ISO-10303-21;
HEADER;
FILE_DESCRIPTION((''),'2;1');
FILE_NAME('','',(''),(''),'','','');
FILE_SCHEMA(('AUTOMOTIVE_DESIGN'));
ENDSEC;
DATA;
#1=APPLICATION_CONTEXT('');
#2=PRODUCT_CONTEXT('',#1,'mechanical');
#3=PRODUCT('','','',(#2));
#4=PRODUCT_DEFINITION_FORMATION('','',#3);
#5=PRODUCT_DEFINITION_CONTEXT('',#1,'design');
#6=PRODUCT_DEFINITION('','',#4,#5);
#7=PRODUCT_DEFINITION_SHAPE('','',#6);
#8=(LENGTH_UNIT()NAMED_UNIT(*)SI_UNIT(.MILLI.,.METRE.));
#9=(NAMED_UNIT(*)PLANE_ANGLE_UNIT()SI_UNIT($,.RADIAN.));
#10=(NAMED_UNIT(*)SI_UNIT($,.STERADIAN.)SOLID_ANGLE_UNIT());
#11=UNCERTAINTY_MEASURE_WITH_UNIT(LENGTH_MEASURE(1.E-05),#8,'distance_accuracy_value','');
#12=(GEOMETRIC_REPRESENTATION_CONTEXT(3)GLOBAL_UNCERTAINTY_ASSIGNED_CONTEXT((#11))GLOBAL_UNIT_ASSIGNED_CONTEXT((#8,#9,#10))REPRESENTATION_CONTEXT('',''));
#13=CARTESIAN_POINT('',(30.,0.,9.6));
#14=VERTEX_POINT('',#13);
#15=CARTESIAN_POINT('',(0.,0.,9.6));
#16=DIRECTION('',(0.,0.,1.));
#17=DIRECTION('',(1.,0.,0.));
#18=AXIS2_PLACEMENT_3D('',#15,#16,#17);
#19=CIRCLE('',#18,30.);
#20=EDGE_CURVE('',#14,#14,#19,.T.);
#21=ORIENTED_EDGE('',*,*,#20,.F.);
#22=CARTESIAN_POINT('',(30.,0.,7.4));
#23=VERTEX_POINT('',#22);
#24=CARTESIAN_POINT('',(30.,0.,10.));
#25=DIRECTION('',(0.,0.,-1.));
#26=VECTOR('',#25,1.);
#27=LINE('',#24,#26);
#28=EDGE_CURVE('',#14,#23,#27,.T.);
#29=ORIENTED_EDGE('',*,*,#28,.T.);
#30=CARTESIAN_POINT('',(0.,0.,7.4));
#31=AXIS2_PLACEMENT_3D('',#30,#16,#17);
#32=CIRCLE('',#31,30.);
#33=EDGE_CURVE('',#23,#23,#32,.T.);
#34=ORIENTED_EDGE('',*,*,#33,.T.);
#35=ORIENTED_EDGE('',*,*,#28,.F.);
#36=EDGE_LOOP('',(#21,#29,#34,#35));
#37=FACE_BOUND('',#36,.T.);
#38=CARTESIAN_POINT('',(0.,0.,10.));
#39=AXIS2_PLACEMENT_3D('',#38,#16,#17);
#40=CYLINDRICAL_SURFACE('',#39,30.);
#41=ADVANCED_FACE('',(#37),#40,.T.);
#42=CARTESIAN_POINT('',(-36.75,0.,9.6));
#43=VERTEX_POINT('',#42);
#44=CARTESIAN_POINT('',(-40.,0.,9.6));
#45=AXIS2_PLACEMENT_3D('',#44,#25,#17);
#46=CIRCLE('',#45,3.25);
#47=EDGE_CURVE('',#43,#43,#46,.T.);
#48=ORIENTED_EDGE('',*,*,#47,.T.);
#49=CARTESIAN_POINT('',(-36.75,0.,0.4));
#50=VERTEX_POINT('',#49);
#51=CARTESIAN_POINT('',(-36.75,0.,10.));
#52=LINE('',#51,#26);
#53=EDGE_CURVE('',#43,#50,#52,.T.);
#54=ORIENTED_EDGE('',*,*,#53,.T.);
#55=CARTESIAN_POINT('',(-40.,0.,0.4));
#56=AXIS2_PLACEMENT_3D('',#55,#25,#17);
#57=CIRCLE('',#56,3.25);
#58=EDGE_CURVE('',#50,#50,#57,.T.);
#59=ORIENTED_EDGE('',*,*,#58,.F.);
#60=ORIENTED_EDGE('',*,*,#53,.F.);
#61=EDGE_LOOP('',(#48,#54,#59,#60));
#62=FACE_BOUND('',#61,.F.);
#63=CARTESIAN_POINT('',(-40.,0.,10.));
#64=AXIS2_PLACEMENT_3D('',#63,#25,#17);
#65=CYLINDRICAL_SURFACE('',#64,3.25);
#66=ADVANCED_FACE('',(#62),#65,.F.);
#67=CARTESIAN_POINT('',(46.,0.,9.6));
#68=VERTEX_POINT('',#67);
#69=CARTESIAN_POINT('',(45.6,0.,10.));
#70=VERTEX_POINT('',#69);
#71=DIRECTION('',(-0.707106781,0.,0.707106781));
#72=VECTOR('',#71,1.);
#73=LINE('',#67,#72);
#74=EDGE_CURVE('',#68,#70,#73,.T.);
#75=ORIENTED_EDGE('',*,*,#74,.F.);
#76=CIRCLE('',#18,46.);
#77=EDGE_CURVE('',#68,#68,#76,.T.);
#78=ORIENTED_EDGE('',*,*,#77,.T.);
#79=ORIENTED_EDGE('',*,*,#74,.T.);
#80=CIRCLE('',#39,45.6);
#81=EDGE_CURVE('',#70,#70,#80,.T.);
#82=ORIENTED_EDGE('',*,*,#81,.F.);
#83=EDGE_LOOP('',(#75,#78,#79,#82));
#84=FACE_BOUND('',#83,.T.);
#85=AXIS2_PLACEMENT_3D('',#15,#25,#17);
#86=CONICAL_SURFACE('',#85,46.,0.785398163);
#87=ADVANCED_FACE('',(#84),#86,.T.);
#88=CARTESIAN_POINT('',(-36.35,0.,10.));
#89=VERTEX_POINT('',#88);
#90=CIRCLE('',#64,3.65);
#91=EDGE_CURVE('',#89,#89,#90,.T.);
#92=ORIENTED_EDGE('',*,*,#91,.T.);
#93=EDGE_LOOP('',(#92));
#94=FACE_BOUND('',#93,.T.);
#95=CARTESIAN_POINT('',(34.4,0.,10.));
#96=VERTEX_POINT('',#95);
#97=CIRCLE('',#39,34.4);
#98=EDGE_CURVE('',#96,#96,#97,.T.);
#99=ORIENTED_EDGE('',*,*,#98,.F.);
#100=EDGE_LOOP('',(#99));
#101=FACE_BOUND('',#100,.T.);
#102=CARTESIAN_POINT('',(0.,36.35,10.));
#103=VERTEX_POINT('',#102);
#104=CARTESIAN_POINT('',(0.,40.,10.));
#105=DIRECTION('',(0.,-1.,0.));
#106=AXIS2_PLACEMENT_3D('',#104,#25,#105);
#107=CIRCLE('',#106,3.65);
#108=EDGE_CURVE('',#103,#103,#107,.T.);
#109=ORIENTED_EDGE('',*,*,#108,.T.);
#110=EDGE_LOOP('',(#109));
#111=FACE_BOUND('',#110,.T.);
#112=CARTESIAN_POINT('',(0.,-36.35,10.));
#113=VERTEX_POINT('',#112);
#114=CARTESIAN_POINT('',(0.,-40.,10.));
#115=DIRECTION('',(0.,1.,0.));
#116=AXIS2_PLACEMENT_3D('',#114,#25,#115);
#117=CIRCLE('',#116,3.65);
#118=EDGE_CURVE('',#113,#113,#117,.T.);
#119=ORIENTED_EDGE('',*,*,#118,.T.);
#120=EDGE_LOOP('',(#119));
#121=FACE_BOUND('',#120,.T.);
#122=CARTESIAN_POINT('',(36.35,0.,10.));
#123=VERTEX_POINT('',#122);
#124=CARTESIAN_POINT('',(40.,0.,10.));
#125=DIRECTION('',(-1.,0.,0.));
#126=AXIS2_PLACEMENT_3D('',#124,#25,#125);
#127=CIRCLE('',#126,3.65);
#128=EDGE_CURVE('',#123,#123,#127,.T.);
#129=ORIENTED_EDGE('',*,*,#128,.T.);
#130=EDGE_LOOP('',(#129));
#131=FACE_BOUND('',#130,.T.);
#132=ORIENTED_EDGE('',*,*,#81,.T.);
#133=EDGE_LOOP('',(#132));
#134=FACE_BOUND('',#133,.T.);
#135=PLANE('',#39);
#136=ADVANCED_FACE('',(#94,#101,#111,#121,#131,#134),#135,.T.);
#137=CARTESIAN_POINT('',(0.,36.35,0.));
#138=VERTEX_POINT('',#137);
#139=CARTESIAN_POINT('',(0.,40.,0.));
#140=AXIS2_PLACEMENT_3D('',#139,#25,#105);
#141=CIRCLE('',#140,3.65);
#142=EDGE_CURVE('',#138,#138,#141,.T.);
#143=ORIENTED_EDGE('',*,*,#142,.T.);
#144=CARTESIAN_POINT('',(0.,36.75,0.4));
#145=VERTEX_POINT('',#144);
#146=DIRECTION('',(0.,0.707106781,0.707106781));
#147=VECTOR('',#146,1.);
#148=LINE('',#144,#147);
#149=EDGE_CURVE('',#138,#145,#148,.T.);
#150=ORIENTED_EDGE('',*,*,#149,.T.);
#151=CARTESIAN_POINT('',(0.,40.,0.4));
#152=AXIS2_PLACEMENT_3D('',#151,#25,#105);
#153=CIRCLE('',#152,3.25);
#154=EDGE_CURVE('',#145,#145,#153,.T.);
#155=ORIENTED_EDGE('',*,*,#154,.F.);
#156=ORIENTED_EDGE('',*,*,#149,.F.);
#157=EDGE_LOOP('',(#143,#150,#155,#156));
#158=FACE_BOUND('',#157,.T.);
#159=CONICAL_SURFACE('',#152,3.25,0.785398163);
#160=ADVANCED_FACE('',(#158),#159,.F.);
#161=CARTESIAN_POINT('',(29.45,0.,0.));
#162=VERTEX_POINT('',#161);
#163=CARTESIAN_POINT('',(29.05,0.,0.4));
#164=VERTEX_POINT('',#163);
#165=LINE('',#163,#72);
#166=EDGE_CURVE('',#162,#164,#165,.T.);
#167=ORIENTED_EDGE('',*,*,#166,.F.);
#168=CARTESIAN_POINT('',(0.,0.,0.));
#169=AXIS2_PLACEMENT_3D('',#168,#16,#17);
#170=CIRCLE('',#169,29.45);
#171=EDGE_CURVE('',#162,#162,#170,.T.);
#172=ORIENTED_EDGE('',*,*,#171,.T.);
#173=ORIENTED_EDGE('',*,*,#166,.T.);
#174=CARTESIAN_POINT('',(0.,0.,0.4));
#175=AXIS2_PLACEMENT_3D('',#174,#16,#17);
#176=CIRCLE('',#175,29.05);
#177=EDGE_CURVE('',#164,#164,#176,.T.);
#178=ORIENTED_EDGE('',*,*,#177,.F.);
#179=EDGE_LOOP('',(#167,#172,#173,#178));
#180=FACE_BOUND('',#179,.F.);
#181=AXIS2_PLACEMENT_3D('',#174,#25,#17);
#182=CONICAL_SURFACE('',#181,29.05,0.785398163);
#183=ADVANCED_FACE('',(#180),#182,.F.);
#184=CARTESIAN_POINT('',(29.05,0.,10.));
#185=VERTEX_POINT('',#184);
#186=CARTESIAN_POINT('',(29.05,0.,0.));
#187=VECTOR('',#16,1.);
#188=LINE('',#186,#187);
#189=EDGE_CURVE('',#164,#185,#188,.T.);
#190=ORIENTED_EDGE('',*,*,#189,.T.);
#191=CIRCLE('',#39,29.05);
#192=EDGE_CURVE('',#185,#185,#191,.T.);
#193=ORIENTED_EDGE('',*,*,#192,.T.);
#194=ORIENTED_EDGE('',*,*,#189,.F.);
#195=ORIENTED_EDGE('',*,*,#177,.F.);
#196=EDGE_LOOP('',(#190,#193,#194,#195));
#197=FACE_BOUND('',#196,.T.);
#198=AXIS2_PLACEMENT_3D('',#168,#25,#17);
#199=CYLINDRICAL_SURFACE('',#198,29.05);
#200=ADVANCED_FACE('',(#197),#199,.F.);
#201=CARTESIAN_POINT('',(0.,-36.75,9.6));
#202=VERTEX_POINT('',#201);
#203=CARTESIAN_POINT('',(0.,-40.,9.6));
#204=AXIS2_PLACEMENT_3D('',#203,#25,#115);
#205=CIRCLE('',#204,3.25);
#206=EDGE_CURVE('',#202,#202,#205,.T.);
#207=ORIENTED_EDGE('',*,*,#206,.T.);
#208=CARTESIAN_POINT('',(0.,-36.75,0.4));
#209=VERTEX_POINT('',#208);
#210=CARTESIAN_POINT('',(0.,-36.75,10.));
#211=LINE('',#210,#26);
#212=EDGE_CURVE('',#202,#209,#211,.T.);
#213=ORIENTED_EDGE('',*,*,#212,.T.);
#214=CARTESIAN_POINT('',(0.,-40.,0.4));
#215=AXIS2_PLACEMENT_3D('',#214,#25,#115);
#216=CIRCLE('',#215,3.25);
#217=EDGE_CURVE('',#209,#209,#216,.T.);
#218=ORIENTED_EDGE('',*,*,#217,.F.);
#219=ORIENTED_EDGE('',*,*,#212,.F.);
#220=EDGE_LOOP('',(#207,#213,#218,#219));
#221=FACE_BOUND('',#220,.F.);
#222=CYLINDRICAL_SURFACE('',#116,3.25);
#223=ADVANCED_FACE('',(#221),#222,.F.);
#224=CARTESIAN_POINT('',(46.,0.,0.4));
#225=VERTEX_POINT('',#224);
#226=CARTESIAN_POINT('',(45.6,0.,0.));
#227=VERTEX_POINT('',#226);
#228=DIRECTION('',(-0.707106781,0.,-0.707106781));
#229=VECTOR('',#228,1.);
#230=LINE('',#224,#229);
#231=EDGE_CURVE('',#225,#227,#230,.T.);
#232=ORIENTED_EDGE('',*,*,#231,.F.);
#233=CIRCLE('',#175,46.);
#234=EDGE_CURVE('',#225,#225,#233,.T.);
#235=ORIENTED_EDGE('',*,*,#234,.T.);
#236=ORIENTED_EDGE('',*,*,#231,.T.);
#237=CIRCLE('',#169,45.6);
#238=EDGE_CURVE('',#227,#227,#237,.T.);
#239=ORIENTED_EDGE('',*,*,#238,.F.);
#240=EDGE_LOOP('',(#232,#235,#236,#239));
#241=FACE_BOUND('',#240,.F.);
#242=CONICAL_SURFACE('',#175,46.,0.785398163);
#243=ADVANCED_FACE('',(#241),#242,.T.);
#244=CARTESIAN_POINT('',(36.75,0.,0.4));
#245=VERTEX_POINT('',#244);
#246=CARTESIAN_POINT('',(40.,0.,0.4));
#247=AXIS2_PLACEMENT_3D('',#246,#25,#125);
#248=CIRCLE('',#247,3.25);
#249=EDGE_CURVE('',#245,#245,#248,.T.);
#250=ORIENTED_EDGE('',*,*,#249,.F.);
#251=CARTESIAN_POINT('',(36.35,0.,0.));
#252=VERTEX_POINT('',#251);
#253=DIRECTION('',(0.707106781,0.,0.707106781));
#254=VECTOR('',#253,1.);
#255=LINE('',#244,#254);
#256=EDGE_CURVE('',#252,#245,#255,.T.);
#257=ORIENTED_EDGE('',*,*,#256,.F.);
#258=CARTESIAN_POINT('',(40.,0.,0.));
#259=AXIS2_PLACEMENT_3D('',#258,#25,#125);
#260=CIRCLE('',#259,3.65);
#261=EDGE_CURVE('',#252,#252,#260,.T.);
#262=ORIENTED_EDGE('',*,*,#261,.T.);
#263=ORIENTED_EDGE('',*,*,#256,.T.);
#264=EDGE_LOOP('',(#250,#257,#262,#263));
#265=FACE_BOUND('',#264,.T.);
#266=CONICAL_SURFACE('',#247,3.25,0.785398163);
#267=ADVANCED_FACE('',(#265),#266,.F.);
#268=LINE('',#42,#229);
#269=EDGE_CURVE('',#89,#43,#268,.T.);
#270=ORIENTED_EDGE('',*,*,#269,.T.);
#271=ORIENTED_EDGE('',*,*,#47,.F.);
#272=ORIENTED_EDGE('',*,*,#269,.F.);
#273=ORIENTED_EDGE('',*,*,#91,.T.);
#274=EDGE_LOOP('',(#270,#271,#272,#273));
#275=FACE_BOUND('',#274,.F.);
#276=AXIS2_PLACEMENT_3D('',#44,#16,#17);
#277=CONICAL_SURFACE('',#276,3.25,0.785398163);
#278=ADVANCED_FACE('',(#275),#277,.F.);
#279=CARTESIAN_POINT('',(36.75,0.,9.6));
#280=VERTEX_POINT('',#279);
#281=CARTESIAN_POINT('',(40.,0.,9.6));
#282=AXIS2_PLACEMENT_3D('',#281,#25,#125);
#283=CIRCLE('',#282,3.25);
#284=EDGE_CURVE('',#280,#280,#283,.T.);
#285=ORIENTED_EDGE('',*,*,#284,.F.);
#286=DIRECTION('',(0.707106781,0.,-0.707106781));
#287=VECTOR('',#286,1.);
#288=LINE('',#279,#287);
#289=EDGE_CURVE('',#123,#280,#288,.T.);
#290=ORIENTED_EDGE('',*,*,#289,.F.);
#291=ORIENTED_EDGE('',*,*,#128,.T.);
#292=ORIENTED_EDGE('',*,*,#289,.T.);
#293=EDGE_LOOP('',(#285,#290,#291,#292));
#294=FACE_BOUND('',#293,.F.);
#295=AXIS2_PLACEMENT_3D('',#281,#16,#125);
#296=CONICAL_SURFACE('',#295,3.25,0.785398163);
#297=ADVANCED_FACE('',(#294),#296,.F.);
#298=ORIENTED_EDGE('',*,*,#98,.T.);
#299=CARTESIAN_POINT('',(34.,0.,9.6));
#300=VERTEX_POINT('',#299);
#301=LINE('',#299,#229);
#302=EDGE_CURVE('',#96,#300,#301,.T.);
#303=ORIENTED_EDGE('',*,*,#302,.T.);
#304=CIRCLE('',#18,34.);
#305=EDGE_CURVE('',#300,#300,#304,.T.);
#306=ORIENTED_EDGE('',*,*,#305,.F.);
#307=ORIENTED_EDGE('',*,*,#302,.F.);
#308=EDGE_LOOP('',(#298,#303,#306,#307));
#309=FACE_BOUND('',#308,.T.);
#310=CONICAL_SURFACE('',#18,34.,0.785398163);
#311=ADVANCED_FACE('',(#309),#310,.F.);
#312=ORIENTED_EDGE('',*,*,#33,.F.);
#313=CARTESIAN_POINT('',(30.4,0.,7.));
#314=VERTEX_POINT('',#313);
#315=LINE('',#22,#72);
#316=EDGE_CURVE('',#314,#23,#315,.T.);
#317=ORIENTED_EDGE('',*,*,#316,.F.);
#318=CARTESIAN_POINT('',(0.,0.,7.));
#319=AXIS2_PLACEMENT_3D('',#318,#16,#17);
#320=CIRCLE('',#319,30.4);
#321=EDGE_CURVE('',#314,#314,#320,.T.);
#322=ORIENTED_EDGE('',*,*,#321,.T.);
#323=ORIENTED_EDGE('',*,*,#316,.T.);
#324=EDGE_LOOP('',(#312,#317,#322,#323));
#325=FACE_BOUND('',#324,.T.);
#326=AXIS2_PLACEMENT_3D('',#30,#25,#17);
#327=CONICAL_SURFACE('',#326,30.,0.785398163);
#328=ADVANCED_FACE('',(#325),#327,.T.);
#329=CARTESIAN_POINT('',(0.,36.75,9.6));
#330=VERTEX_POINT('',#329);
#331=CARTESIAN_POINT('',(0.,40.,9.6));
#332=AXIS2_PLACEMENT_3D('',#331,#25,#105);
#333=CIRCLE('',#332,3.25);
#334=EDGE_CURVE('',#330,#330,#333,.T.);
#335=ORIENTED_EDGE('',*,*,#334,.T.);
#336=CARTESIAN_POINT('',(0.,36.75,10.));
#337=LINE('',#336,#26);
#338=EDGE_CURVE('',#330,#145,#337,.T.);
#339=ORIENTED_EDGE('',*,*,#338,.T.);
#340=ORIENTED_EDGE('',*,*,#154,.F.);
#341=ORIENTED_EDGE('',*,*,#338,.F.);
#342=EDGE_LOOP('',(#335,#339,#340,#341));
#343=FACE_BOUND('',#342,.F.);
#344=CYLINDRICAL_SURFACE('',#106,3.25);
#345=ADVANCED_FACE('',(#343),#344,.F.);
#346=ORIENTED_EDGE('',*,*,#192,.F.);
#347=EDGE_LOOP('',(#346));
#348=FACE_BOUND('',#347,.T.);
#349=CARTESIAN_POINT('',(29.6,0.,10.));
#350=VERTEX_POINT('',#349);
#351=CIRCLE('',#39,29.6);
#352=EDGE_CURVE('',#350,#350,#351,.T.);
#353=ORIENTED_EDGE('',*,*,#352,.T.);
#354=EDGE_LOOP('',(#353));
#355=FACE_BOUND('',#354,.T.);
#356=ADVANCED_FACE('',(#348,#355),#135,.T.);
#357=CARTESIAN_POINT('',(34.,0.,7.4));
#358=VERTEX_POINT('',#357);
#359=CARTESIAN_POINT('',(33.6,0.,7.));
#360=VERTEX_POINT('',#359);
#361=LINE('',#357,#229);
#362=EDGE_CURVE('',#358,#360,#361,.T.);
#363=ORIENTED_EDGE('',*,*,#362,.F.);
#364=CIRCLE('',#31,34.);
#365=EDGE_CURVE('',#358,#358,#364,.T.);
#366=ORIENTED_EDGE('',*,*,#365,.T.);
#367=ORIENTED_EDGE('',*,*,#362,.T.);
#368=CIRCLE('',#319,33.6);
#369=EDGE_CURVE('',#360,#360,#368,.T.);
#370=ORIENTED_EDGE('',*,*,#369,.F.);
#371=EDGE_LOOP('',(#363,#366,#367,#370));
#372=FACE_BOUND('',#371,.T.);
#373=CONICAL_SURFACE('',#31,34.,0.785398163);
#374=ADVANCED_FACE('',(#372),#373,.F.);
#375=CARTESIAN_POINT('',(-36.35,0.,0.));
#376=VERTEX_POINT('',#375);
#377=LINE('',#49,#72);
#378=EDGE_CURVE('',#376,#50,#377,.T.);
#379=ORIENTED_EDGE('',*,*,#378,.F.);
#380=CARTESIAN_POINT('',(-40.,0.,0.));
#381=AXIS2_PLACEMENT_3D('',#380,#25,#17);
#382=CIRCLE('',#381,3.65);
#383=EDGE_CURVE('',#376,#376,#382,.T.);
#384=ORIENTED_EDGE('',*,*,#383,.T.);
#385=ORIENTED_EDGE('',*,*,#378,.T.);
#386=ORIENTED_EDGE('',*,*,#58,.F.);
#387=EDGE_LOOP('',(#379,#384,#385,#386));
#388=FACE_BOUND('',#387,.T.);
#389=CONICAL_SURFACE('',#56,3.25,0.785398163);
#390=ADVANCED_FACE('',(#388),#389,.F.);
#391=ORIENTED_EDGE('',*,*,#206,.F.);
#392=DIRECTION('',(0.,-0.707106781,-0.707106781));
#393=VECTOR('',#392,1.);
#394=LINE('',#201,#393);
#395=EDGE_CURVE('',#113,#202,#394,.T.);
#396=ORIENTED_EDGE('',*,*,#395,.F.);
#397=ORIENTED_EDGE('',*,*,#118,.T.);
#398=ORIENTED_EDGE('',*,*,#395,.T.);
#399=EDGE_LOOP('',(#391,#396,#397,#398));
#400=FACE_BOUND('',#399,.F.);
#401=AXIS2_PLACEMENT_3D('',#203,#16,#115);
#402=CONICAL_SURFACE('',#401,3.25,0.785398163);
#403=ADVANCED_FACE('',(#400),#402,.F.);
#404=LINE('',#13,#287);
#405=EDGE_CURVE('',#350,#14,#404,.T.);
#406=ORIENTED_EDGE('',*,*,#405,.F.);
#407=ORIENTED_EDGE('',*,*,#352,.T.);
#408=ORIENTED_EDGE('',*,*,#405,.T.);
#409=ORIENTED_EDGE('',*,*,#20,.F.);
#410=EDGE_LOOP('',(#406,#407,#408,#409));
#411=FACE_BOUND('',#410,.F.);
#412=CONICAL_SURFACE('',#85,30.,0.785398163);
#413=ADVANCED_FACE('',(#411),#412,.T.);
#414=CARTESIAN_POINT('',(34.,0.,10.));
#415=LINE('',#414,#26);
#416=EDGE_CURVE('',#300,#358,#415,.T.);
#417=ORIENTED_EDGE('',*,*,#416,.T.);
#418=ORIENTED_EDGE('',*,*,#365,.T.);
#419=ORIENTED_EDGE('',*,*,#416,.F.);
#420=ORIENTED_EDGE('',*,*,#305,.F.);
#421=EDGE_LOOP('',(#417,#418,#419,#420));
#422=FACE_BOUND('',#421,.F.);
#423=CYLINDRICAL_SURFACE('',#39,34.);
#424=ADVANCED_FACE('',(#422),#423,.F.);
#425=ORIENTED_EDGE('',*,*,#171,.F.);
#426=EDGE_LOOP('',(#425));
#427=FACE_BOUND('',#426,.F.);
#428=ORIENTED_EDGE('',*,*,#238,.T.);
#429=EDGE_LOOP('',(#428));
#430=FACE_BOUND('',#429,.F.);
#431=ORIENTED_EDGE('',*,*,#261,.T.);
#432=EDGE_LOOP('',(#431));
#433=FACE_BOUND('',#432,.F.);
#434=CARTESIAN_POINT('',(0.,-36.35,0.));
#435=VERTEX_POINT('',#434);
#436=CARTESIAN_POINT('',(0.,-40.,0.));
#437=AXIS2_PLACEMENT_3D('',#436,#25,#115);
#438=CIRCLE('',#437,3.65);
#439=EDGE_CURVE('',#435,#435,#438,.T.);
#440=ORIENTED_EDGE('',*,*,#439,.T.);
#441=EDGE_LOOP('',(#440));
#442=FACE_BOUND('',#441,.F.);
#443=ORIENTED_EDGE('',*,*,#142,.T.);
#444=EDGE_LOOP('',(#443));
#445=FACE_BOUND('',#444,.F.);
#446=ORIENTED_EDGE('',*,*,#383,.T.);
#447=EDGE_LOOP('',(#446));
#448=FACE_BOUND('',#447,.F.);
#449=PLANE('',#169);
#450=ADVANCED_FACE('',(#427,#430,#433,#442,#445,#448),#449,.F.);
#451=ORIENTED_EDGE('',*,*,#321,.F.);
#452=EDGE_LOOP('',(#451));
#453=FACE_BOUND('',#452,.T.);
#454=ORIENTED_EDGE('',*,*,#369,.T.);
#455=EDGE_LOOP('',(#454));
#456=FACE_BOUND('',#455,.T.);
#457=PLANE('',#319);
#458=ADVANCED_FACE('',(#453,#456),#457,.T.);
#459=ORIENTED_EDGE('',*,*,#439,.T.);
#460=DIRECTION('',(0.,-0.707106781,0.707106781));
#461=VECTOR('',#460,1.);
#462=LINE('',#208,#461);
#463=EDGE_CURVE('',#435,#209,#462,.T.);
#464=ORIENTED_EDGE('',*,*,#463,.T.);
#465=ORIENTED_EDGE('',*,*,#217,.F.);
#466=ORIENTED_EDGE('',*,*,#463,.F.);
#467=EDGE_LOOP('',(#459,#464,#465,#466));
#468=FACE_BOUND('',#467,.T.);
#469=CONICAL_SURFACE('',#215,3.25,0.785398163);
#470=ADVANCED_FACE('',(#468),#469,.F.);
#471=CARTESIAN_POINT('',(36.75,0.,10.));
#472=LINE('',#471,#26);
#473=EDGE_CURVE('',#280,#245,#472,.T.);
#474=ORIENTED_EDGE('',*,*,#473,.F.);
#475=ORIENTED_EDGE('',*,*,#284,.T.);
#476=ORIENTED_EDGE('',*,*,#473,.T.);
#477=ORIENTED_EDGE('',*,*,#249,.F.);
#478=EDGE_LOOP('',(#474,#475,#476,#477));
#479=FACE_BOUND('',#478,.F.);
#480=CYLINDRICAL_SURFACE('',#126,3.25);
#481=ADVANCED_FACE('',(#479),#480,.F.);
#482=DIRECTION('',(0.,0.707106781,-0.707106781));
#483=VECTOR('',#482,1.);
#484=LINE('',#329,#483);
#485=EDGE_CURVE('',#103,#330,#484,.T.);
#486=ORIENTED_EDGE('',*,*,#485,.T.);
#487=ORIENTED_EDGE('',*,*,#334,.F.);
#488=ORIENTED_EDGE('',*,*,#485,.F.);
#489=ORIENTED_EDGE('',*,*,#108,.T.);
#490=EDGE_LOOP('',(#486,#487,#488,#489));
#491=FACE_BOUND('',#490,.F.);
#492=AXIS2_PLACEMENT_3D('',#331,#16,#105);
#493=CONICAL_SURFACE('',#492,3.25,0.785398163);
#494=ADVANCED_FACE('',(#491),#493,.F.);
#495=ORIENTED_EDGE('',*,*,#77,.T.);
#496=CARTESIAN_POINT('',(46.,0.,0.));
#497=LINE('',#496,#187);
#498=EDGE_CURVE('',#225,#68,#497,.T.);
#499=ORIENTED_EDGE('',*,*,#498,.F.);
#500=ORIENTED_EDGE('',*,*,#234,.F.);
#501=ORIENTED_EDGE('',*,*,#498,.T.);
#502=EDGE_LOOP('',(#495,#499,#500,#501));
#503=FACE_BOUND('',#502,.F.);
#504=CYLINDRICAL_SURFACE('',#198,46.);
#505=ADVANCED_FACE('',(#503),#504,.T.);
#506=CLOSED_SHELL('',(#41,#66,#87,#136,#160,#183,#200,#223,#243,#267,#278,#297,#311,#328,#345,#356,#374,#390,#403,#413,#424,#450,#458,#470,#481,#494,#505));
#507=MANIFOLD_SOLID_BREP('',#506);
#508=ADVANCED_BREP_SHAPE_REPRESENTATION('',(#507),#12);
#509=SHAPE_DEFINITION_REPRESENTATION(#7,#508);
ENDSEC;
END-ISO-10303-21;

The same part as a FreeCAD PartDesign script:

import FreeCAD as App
import Part
import Sketcher
from FreeCAD import Vector


def edges_at(feature, points):
    """Names of the edges that pass closest to the given points."""
    edges = feature.Shape.Edges
    near = lambda p: min(range(len(edges)), key=lambda i: edges[i].distToShape(Part.Vertex(*p))[0])
    return sorted({f"Edge{near(p) + 1}" for p in points})

doc = App.newDocument("Part")
body = doc.addObject("PartDesign::Body", "Body")

# Sketch on XY plane
sketch1 = body.newObject("Sketcher::SketchObject", "Sketch")
sketch1.AttachmentSupport = (doc.getObject("XY_Plane"), [""])
sketch1.MapMode = "FlatFace"
sketch1.addGeometry(Part.Circle(Vector(0, 0, 0), Vector(0, 0, 1), 46), False)
sketch1.addGeometry(Part.Circle(Vector(0, 0, 0), Vector(0, 0, 1), 29), False)
sketch1.addConstraint(Sketcher.Constraint("Coincident", 0, 3, -1, 1))
sketch1.addConstraint(Sketcher.Constraint("Coincident", 1, 3, -1, 1))
sketch1.addConstraint(Sketcher.Constraint("Diameter", 0, 92.0))
sketch1.addConstraint(Sketcher.Constraint("Diameter", 1, 58.1))
pad1 = body.newObject("PartDesign::Pad", "Pad")
pad1.Profile = sketch1
pad1.Length = 10

# Sketch on XY plane
sketch2 = body.newObject("Sketcher::SketchObject", "Sketch001")
sketch2.AttachmentSupport = (doc.getObject("XY_Plane"), [""])
sketch2.MapMode = "FlatFace"
sketch2.AttachmentOffset = App.Placement(Vector(0, 0, 10), App.Rotation())
sketch2.addGeometry(Part.Circle(Vector(0, 40, 0), Vector(0, 0, 1), 3.2), False)
sketch2.addConstraint(Sketcher.Constraint("PointOnObject", 0, 3, -2))
sketch2.addConstraint(Sketcher.Constraint("Diameter", 0, 6.5))
sketch2.addConstraint(Sketcher.Constraint("DistanceY", -1, 1, 0, 3, 40.0))
doc.recompute()
hole = body.newObject("PartDesign::Hole", "Hole")
hole.Profile = sketch2
hole.ThreadType = "None"
hole.Diameter = 6.5
hole.DepthType = "ThroughAll"
doc.recompute()

polarpattern = body.newObject("PartDesign::PolarPattern", "PolarPattern")
polarpattern.Originals = [hole]
polarpattern.Axis = (doc.getObject("Z_Axis"), [""])
polarpattern.Angle = 360
polarpattern.Occurrences = 4
body.Tip = polarpattern

# Sketch on XY plane
sketch3 = body.newObject("Sketcher::SketchObject", "Sketch002")
sketch3.AttachmentSupport = (doc.getObject("XY_Plane"), [""])
sketch3.MapMode = "FlatFace"
sketch3.AttachmentOffset = App.Placement(Vector(0, 0, 10), App.Rotation())
sketch3.addGeometry(Part.Circle(Vector(0, 0, 0), Vector(0, 0, 1), 34), False)
sketch3.addGeometry(Part.Circle(Vector(0, 0, 0), Vector(0, 0, 1), 30), False)
sketch3.addConstraint(Sketcher.Constraint("Coincident", 0, 3, -1, 1))
sketch3.addConstraint(Sketcher.Constraint("Coincident", 1, 3, -1, 1))
sketch3.addConstraint(Sketcher.Constraint("Diameter", 0, 68.0))
sketch3.addConstraint(Sketcher.Constraint("Diameter", 1, 60.0))
pocket1 = body.newObject("PartDesign::Pocket", "Pocket")
pocket1.Profile = sketch3
pocket1.Length = 3
doc.recompute()

chamfer = body.newObject("PartDesign::Chamfer", "Chamfer")
chamfer.Base = (pocket1, edges_at(pocket1, [
    (-46, 0, 0),
    (-46, 0, 10),
    (0, 43.25, 0),
    (-43.25, 0, 0),
    (43.25, 0, 0),
    (0, -43.25, 0),
    (43.25, 0, 10),
    (0, 43.25, 10),
    (0, -43.25, 10),
    (-43.25, 0, 10),
    (-29.05, 0, 0),
    (-34, 0, 10),
    (-34, 0, 7),
    (-30, 0, 7),
    (-30, 0, 10),
]))
chamfer.Size = 0.4

doc.recompute()
